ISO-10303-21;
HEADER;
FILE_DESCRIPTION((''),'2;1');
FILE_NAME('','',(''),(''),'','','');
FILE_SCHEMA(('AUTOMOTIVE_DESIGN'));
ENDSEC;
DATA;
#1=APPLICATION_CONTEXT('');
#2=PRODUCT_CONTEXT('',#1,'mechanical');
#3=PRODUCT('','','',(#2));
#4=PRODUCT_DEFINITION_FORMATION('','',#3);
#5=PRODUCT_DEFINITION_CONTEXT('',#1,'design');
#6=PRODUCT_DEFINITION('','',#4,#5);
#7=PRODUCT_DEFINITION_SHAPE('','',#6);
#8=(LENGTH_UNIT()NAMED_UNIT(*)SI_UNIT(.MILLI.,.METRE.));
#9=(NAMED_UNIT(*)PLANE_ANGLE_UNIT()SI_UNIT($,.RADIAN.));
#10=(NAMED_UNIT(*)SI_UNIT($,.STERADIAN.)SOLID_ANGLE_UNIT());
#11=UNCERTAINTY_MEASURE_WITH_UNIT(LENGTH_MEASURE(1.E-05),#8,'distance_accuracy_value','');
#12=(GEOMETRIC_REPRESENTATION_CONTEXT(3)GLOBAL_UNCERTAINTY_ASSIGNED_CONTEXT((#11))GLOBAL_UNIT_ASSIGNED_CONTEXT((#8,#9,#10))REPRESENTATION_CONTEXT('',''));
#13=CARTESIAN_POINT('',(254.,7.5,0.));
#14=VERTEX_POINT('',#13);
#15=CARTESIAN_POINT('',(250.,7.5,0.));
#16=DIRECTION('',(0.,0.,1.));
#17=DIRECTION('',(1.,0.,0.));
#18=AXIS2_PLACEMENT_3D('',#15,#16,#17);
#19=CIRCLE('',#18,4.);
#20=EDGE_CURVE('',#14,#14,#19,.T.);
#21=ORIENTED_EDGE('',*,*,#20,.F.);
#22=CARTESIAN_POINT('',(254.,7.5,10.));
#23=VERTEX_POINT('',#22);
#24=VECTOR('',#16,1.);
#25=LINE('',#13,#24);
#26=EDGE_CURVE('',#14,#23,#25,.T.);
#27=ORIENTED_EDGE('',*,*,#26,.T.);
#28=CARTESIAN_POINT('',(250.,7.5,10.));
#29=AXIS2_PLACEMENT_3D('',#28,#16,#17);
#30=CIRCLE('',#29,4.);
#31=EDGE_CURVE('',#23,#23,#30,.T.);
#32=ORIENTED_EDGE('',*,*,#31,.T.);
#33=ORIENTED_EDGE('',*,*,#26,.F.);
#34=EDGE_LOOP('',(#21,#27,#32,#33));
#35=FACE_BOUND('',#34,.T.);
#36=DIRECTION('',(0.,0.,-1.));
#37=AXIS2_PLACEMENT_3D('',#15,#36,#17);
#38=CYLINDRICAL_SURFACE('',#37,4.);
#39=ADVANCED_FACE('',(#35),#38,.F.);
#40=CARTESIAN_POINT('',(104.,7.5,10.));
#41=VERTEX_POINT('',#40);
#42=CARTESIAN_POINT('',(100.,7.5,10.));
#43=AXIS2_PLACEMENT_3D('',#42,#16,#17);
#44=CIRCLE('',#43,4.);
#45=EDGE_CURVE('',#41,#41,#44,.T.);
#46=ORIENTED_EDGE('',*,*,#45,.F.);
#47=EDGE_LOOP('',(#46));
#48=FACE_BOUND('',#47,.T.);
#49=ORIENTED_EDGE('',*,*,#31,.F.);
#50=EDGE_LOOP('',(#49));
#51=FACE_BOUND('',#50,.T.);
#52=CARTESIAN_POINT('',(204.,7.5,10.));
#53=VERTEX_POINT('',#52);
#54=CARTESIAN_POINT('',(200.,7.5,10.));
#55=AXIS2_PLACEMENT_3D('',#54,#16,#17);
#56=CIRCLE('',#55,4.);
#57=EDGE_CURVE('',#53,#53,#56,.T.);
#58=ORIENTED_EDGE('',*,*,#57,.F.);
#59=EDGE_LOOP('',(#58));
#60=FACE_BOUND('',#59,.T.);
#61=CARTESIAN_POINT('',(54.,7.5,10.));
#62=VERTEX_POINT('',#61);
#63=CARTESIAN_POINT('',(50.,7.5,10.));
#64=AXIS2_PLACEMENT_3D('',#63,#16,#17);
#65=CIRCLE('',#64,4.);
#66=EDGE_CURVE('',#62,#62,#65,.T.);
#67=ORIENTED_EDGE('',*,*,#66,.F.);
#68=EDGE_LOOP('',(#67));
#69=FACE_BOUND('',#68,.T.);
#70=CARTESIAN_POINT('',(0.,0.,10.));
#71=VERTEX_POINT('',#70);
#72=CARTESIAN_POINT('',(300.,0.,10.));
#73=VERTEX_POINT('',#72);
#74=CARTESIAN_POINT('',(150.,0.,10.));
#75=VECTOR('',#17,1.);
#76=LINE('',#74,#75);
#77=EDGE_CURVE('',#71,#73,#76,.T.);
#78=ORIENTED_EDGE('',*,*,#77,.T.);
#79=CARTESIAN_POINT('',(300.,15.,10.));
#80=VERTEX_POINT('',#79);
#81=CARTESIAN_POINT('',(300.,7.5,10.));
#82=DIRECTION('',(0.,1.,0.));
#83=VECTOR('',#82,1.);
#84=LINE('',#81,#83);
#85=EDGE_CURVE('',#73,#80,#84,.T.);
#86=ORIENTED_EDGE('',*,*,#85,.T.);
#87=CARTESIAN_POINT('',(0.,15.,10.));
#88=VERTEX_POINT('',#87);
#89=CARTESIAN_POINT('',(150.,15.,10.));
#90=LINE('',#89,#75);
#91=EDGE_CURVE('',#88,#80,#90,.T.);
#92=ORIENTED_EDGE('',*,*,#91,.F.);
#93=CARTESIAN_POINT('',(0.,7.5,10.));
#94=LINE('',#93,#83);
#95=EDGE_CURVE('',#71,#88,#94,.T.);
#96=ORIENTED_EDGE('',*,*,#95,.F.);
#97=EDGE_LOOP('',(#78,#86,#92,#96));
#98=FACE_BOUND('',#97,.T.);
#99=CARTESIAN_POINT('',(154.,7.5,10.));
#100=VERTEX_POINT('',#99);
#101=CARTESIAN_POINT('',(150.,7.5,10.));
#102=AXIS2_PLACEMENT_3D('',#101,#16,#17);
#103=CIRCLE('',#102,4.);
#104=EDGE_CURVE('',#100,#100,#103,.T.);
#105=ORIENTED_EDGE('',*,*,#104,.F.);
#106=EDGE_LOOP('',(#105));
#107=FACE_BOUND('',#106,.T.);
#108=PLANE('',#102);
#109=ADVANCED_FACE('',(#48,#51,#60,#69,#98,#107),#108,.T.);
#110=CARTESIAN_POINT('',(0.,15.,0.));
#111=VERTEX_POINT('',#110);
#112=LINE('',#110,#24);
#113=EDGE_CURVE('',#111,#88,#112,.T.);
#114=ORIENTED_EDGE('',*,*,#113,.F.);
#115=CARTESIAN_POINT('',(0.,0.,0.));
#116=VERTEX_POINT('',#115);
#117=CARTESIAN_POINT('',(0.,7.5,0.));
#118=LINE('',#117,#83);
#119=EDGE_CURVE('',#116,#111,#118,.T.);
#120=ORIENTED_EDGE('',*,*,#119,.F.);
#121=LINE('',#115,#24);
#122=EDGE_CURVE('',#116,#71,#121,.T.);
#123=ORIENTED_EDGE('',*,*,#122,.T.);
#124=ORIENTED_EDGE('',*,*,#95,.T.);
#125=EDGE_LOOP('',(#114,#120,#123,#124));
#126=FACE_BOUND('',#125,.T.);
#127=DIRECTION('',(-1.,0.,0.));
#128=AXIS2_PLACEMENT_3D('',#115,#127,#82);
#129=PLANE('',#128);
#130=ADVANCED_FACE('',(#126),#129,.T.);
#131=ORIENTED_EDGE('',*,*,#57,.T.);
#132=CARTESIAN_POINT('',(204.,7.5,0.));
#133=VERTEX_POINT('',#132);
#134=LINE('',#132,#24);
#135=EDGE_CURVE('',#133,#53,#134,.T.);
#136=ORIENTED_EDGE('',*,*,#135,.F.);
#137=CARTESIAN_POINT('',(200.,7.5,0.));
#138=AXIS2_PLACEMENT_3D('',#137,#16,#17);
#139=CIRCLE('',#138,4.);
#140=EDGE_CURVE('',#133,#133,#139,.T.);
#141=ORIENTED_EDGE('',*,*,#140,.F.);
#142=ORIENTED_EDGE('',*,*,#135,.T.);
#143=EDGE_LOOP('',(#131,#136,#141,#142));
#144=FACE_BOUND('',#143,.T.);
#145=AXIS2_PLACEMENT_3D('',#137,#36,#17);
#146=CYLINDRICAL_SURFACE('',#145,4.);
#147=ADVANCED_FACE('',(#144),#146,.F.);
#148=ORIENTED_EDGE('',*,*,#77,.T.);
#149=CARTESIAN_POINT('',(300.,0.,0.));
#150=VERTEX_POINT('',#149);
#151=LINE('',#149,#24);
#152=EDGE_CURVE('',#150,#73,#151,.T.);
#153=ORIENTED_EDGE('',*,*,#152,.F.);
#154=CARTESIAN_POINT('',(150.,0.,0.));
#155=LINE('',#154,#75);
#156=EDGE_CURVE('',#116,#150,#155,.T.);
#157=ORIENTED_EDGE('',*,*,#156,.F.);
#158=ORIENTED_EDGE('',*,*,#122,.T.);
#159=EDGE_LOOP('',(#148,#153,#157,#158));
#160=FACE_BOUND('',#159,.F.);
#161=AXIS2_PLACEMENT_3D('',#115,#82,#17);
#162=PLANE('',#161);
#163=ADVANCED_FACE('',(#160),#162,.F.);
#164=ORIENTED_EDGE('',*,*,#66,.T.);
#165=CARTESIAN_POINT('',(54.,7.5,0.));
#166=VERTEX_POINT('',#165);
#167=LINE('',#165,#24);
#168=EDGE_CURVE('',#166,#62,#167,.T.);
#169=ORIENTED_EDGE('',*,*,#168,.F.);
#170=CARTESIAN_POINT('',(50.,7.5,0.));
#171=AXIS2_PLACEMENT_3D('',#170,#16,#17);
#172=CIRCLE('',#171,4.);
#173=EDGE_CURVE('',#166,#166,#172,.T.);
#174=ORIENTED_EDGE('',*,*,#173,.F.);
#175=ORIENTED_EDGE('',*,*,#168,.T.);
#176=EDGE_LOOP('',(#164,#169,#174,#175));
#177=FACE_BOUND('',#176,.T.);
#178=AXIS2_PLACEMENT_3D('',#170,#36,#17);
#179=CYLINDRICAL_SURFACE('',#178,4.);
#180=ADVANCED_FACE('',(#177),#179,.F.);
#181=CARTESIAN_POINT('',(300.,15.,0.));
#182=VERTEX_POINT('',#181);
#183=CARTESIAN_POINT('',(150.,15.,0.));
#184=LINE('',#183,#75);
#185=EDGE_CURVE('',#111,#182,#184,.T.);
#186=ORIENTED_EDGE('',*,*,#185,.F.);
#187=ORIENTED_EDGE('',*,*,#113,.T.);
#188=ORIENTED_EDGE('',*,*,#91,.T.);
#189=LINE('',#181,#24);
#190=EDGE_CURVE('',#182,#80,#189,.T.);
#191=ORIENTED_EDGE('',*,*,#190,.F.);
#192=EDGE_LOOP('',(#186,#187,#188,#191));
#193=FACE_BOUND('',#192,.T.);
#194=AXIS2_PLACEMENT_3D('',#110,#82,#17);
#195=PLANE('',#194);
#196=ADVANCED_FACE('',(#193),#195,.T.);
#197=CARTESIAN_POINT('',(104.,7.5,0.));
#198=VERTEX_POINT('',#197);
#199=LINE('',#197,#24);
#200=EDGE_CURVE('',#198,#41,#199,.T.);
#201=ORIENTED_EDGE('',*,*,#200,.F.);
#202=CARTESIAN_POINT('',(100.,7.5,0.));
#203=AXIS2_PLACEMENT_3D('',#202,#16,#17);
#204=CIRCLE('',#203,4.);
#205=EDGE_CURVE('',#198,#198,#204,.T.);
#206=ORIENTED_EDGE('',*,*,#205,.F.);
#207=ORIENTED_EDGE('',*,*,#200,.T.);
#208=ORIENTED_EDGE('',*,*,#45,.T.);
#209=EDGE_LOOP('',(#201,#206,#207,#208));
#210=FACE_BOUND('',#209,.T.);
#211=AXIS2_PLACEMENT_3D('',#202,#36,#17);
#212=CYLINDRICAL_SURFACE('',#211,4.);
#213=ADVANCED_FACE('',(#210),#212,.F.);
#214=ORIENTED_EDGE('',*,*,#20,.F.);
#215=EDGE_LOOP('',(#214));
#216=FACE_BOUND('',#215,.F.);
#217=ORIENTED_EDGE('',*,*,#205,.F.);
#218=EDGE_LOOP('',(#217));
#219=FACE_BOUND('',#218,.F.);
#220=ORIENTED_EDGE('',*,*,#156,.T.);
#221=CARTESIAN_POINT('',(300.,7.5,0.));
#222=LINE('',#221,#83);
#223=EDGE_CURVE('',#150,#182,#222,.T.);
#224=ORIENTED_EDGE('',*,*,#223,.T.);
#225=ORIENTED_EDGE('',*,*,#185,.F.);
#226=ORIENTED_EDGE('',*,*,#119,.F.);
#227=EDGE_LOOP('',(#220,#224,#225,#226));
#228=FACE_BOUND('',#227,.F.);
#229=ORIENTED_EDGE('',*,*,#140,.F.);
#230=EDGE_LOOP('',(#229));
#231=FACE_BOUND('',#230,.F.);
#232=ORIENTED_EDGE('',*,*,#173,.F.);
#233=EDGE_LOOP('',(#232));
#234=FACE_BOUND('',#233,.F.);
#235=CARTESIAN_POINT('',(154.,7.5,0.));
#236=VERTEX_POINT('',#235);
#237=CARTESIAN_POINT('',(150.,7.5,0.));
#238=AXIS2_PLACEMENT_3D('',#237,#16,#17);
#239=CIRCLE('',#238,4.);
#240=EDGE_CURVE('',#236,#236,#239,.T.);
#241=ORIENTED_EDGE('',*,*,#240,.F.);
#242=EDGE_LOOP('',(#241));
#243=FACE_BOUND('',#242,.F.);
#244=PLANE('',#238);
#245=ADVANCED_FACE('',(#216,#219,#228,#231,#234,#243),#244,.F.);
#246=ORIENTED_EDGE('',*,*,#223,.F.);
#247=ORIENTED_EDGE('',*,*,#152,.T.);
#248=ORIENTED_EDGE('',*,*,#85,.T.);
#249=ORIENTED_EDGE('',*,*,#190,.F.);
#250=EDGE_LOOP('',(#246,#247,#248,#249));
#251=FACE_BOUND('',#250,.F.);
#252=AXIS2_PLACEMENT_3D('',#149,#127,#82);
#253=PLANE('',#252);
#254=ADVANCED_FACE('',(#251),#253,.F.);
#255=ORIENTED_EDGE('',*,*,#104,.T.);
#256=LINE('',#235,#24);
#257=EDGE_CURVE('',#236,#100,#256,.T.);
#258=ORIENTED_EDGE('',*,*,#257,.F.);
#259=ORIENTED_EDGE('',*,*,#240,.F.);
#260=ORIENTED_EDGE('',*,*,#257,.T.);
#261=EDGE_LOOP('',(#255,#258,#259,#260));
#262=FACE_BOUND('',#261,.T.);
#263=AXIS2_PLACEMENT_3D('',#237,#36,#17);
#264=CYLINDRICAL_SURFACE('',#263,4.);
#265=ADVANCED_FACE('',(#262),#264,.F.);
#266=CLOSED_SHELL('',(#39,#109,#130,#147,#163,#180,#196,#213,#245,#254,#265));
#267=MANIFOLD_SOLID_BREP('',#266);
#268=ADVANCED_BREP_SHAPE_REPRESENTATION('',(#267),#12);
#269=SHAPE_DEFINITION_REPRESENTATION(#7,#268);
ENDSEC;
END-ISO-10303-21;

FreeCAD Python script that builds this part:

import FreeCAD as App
import Part
import Sketcher
from FreeCAD import Vector
Q = App.Units.Quantity


def add_polygon(sketch, points):
    """Adds a closed chain of lines whose ends are joined by coincident constraints."""
    first, n = sketch.GeometryCount, len(points)
    for a, b in zip(points, points[1:] + points[:1]):
        sketch.addGeometry(Part.LineSegment(App.Vector(*a, 0), App.Vector(*b, 0)), False)
    for i in range(n):
        sketch.addConstraint(Sketcher.Constraint("Coincident", first + i, 2, first + (i + 1) % n, 1))

doc = App.newDocument("Part")
params = doc.addObject("Spreadsheet::Sheet", "Params")
for row, (alias, value) in enumerate([
    ("sketch1_diameter", "8 mm"),
    ("sketch1_width", "300 mm"),
    ("sketch1_height", "15 mm"),
    ("pad1_length", "10 mm"),
], start=1):
    params.set(f"A{row}", alias)
    params.set(f"B{row}", "=" + value)
    params.setAlias(f"B{row}", alias)

body = doc.addObject("PartDesign::Body", "Body")

# Sketch on XY plane
sketch1 = body.newObject("Sketcher::SketchObject", "Sketch")
sketch1.AttachmentSupport = (doc.getObject("XY_Plane"), [""])
sketch1.MapMode = "FlatFace"
add_polygon(sketch1, [(0, 15), (0, 0), (300, 0), (300, 15)])  # lines 0-3
sketch1.addGeometry(Part.Circle(Vector(50, 7.5, 0), Vector(0, 0, 1), 4), False)  # 4
sketch1.addGeometry(Part.Circle(Vector(100, 7.5, 0), Vector(0, 0, 1), 4), False)  # 5
sketch1.addGeometry(Part.Circle(Vector(150, 7.5, 0), Vector(0, 0, 1), 4), False)  # 6
sketch1.addGeometry(Part.Circle(Vector(200, 7.5, 0), Vector(0, 0, 1), 4), False)  # 7
sketch1.addGeometry(Part.Circle(Vector(250, 7.5, 0), Vector(0, 0, 1), 4), False)  # 8
sketch1.addConstraint(Sketcher.Constraint("Vertical", 0))
sketch1.addConstraint(Sketcher.Constraint("Horizontal", 1))
sketch1.addConstraint(Sketcher.Constraint("Vertical", 2))
sketch1.addConstraint(Sketcher.Constraint("Horizontal", 3))
sketch1.addConstraint(Sketcher.Constraint("Coincident", 0, 2, -1, 1))
sketch1.addConstraint(Sketcher.Constraint("Equal", 4, 5))
sketch1.addConstraint(Sketcher.Constraint("Equal", 5, 6))
sketch1.addConstraint(Sketcher.Constraint("Equal", 6, 7))
sketch1.addConstraint(Sketcher.Constraint("Equal", 7, 8))
sketch1.addConstraint(Sketcher.Constraint("Horizontal", 4, 3, 5, 3))
sketch1.addConstraint(Sketcher.Constraint("Horizontal", 5, 3, 6, 3))
sketch1.addConstraint(Sketcher.Constraint("Horizontal", 6, 3, 7, 3))
sketch1.addConstraint(Sketcher.Constraint("Horizontal", 7, 3, 8, 3))
sketch1.addConstraint(Sketcher.Constraint("Diameter", 4, Q("8 mm")))
sketch1.addConstraint(Sketcher.Constraint("DistanceX", 1, 1, 1, 2, Q("300 mm")))
sketch1.addConstraint(Sketcher.Constraint("DistanceY", 0, 2, 0, 1, Q("15 mm")))
sketch1.addConstraint(Sketcher.Constraint("DistanceX", -1, 1, 4, 3, Q("50 mm")))
sketch1.addConstraint(Sketcher.Constraint("DistanceX", -1, 1, 5, 3, Q("100 mm")))
sketch1.addConstraint(Sketcher.Constraint("DistanceX", -1, 1, 6, 3, Q("150 mm")))
sketch1.addConstraint(Sketcher.Constraint("DistanceX", -1, 1, 7, 3, Q("200 mm")))
sketch1.addConstraint(Sketcher.Constraint("DistanceX", -1, 1, 8, 3, Q("250 mm")))
sketch1.addConstraint(Sketcher.Constraint("DistanceY", -1, 1, 4, 3, Q("7.5 mm")))
sketch1.setExpression("Constraints[17]", "Params.sketch1_diameter")
sketch1.setExpression("Constraints[18]", "Params.sketch1_width")
sketch1.setExpression("Constraints[19]", "Params.sketch1_height")
pad1 = body.newObject("PartDesign::Pad", "Pad")
pad1.Profile = sketch1
pad1.setExpression("Length", "Params.pad1_length")

doc.recompute()
